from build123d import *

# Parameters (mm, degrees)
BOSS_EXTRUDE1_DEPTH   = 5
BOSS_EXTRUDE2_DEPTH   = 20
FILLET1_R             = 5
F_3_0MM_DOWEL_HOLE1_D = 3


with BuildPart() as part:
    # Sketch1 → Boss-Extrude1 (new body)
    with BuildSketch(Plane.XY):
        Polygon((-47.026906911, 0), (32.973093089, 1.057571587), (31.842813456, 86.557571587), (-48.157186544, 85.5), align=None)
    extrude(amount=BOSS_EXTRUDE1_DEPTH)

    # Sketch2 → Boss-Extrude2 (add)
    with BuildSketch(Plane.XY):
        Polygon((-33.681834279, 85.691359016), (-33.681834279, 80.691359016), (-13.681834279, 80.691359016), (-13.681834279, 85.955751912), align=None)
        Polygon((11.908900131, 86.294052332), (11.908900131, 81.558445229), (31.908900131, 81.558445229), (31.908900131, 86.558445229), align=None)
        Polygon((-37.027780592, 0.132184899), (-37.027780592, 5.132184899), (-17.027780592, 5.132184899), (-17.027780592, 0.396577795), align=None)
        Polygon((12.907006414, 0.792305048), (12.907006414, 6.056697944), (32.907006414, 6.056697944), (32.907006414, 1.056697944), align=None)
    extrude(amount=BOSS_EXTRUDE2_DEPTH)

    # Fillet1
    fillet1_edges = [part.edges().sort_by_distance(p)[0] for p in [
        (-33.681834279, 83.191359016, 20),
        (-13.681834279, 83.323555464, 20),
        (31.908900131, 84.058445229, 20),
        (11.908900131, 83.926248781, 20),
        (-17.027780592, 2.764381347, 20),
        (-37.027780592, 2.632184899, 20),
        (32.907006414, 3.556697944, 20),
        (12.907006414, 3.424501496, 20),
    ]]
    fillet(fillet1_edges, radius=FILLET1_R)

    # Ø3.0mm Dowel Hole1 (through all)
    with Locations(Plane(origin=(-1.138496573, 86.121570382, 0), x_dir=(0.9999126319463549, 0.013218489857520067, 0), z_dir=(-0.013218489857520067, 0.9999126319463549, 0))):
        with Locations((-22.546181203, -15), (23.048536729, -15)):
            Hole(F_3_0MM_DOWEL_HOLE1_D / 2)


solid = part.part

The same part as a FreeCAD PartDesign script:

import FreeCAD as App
import Part
import Sketcher
from FreeCAD import Vector


def edges_at(feature, points):
    """Names of the edges that pass closest to the given points."""
    edges = feature.Shape.Edges
    near = lambda p: min(range(len(edges)), key=lambda i: edges[i].distToShape(Part.Vertex(*p))[0])
    return sorted({f"Edge{near(p) + 1}" for p in points})


def add_polygon(sketch, points):
    """Adds a closed chain of lines whose ends are joined by coincident constraints."""
    first, n = sketch.GeometryCount, len(points)
    for a, b in zip(points, points[1:] + points[:1]):
        sketch.addGeometry(Part.LineSegment(App.Vector(*a, 0), App.Vector(*b, 0)), False)
    for i in range(n):
        sketch.addConstraint(Sketcher.Constraint("Coincident", first + i, 2, first + (i + 1) % n, 1))

doc = App.newDocument("Part")
body = doc.addObject("PartDesign::Body", "Body")

# Sketch on XY plane
sketch1 = body.newObject("Sketcher::SketchObject", "Sketch")
sketch1.AttachmentSupport = (doc.getObject("XY_Plane"), [""])
sketch1.MapMode = "FlatFace"
add_polygon(sketch1, [(-47, 0), (33, 1), (32, 87), (-48, 86)])  # lines 0-3
sketch1.addConstraint([
    Sketcher.Constraint("PointOnObject", 3, 2, -1),
    Sketcher.Constraint("Perpendicular", 0, 1),
    Sketcher.Constraint("Perpendicular", 1, 2),
    Sketcher.Constraint("Perpendicular", 2, 3),
    Sketcher.Constraint("DistanceX", 2, 2, 1, 2, 80.0),
    Sketcher.Constraint("DistanceY", -1, 1, 2, 2, 85.5),
    Sketcher.Constraint("Distance", 0, 80.00699),
    Sketcher.Constraint("DistanceX", -1, 1, 0, 2, 32.973093),
])
pad1 = body.newObject("PartDesign::Pad", "Pad")
pad1.Profile = sketch1
pad1.Length = 5

# Sketch on XY plane
sketch2 = body.newObject("Sketcher::SketchObject", "Sketch001")
sketch2.AttachmentSupport = (doc.getObject("XY_Plane"), [""])
sketch2.MapMode = "FlatFace"
add_polygon(sketch2, [(-33.7, 85.7), (-33.7, 80.7), (-13.7, 80.7), (-13.7, 86)])  # lines 0-3
add_polygon(sketch2, [(11.9, 86.3), (11.9, 81.6), (31.9, 81.6), (31.9, 86.6)])  # lines 4-7
add_polygon(sketch2, [(-37, 5.1), (-37, 0.1), (-17, 0.4), (-17, 5.1)])  # lines 8-11
add_polygon(sketch2, [(12.9, 6.1), (12.9, 0.8), (32.9, 1.1), (32.9, 6.1)])  # lines 12-15
sketch2.addConstraint([
    Sketcher.Constraint("Vertical", 0),
    Sketcher.Constraint("Horizontal", 1),
    Sketcher.Constraint("Vertical", 2),
    Sketcher.Constraint("Vertical", 4),
    Sketcher.Constraint("Horizontal", 5),
    Sketcher.Constraint("Vertical", 6),
    Sketcher.Constraint("Vertical", 8),
    Sketcher.Constraint("Vertical", 10),
    Sketcher.Constraint("Horizontal", 11),
    Sketcher.Constraint("Vertical", 12),
    Sketcher.Constraint("Vertical", 14),
    Sketcher.Constraint("Horizontal", 15),
    Sketcher.Constraint("Parallel", 3, 7),
    Sketcher.Constraint("Parallel", 7, 9),
    Sketcher.Constraint("Parallel", 9, 13),
    Sketcher.Constraint("Equal", 1, 5),
    Sketcher.Constraint("Equal", 5, 11),
    Sketcher.Constraint("Equal", 11, 15),
    Sketcher.Constraint("Equal", 0, 6),
    Sketcher.Constraint("Equal", 6, 8),
    Sketcher.Constraint("Equal", 2, 12),
    Sketcher.Constraint("DistanceX", 1, 1, 1, 2, 20.0),
    Sketcher.Constraint("DistanceY", 0, 2, 0, 1, 5.0),
    Sketcher.Constraint("DistanceX", -1, 1, 4, 2, 11.9089),
    Sketcher.Constraint("DistanceY", 2, 2, 7, 2, 0.3383),
    Sketcher.Constraint("DistanceY", 2, 1, 2, 2, 5.264393),
    Sketcher.Constraint("DistanceY", -1, 1, 0, 2, 80.691359),
    Sketcher.Constraint("DistanceX", 8, 2, -1, 1, 37.027781),
    Sketcher.Constraint("DistanceY", 8, 2, 4, 2, 81.42626),
    Sketcher.Constraint("DistanceY", 12, 2, 10, 2, 4.33988),
    Sketcher.Constraint("DistanceX", 0, 2, -1, 1, 33.681834),
    Sketcher.Constraint("DistanceX", -1, 1, 12, 2, 12.907006),
])
pad2 = body.newObject("PartDesign::Pad", "Pad001")
pad2.Profile = sketch2
pad2.Length = 20
doc.recompute()

fillet = body.newObject("PartDesign::Fillet", "Fillet")
fillet.Base = (pad2, edges_at(pad2, [
    (-33.682, 83.191, 20),
    (-13.682, 83.324, 20),
    (31.909, 84.058, 20),
    (11.909, 83.926, 20),
    (-17.028, 2.764, 20),
    (-37.028, 2.632, 20),
    (32.907, 3.557, 20),
    (12.907, 3.425, 20),
]))
fillet.Radius = 5

# Sketch on an angled plane
sketch3 = body.newObject("Sketcher::SketchObject", "Sketch002")
sketch3.Placement = App.Placement(Vector(-1.138497, 86.12157, 0), App.Rotation(Vector(0.999912632, 0.01321849, 0), Vector(0, 0, -1), Vector(-0.01321849, 0.999912632, 0), "ZXY"))
sketch3.addGeometry([
    Part.Circle(Vector(-22.5, -15, 0), Vector(0, 0, 1), 1.5),
    Part.Circle(Vector(23, -15, 0), Vector(0, 0, 1), 1.5),
], False)
sketch3.addConstraint([
    Sketcher.Constraint("Equal", 0, 1),
    Sketcher.Constraint("Horizontal", 0, 3, 1, 3),
    Sketcher.Constraint("Diameter", 0, 3.0),
    Sketcher.Constraint("DistanceY", 0, 3, -1, 1, 15.0),
    Sketcher.Constraint("DistanceX", 0, 3, -1, 1, 22.546181),
    Sketcher.Constraint("DistanceX", -1, 1, 1, 3, 23.048537),
])
doc.recompute()
hole = body.newObject("PartDesign::Hole", "Hole")
hole.Profile = sketch3
hole.ThreadType = "None"
hole.Diameter = 3
hole.DepthType = "ThroughAll"

doc.recompute()
